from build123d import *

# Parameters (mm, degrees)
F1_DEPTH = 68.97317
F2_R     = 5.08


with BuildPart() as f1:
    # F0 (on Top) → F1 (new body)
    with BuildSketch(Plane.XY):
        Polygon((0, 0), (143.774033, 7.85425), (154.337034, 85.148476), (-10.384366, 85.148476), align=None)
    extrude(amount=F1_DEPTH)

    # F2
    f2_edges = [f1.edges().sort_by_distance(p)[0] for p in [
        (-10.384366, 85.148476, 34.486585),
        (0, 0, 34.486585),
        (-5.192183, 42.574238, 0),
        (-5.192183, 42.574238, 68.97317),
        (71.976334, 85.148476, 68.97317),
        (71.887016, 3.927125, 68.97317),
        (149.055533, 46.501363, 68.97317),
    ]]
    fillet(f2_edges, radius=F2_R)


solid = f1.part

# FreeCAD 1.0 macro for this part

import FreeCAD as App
import Part
import Sketcher

V = App.Vector
Q = App.Units.Quantity


def edges_at(feature, points):
    """Names of the edges that pass closest to the given points."""
    edges = feature.Shape.Edges
    near = lambda p: min(range(len(edges)), key=lambda i: edges[i].distToShape(Part.Vertex(*p))[0])
    return sorted({f"Edge{near(p) + 1}" for p in points})

doc = App.newDocument("Part")
body = doc.addObject("PartDesign::Body", "Body")

sketch1 = body.newObject("Sketcher::SketchObject", "Sketch")
sketch1.AttachmentSupport = (doc.getObject("XY_Plane"), [""])
sketch1.MapMode = "FlatFace"
sketch1.addGeometry(Part.LineSegment(V(0, 0, 0), V(144, 8, 0)), False)
sketch1.addGeometry(Part.LineSegment(V(144, 8, 0), V(154, 85, 0)), False)
sketch1.addGeometry(Part.LineSegment(V(154, 85, 0), V(-10, 85, 0)), False)
sketch1.addGeometry(Part.LineSegment(V(-10, 85, 0), V(0, 0, 0)), False)
sketch1.addConstraint(Sketcher.Constraint("Coincident", 0, 2, 1, 1))
sketch1.addConstraint(Sketcher.Constraint("Coincident", 1, 2, 2, 1))
sketch1.addConstraint(Sketcher.Constraint("Coincident", 2, 2, 3, 1))
sketch1.addConstraint(Sketcher.Constraint("Coincident", 3, 2, 0, 1))
sketch1.addConstraint(Sketcher.Constraint("Horizontal", 2))
sketch1.addConstraint(Sketcher.Constraint("Coincident", 3, 2, -1, 1))
sketch1.addConstraint(Sketcher.Constraint("DistanceX", 2, 2, 2, 1, 164.7214))
sketch1.addConstraint(Sketcher.Constraint("DistanceX", 0, 2, 1, 2, 10.563001))
sketch1.addConstraint(Sketcher.Constraint("Distance", 0, 143.988409))
sketch1.addConstraint(Sketcher.Constraint("DistanceY", -1, 1, 0, 2, 7.85425))
sketch1.addConstraint(Sketcher.Constraint("Distance", 1, 78.012655))
pad1 = body.newObject("PartDesign::Pad", "Pad")
pad1.Profile = sketch1
pad1.Length = 68.97317
doc.recompute()

fillet = body.newObject("PartDesign::Fillet", "Fillet")
fillet.Base = (pad1, edges_at(pad1, [
    (-10.384, 85.148, 34.487),
    (0, 0, 34.487),
    (-5.192, 42.574, 0),
    (-5.192, 42.574, 68.973),
    (71.976, 85.148, 68.973),
    (71.887, 3.927, 68.973),
    (149.056, 46.501, 68.973),
]))
fillet.Radius = Q("0.2 in")

doc.recompute()
